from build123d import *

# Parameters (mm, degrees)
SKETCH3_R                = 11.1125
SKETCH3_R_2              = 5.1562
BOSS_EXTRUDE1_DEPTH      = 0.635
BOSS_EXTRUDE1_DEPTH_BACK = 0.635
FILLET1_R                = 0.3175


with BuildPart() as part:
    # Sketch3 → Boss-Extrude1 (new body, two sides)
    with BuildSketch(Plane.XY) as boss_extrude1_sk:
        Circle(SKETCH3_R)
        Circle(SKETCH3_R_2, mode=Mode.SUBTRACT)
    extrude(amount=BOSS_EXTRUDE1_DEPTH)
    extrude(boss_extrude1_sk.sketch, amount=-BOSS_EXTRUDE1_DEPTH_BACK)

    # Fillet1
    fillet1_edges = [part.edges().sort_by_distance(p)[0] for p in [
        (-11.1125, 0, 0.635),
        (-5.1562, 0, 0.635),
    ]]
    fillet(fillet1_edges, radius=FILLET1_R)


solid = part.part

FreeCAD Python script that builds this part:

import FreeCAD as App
import Part
import Sketcher

V = App.Vector
Q = App.Units.Quantity


def edges_at(feature, points):
    """Names of the edges that pass closest to the given points."""
    edges = feature.Shape.Edges
    near = lambda p: min(range(len(edges)), key=lambda i: edges[i].distToShape(Part.Vertex(*p))[0])
    return sorted({f"Edge{near(p) + 1}" for p in points})

doc = App.newDocument("Part")
body = doc.addObject("PartDesign::Body", "Body")

# Sketch on XY plane
sketch1 = body.newObject("Sketcher::SketchObject", "Sketch")
sketch1.AttachmentSupport = (doc.getObject("XY_Plane"), [""])
sketch1.MapMode = "FlatFace"
sketch1.addGeometry(Part.Circle(V(0, 0, 0), V(0, 0, 1), 11.1125), False)
sketch1.addGeometry(Part.Circle(V(0, 0, 0), V(0, 0, 1), 5.1562), False)
sketch1.addConstraint(Sketcher.Constraint("Coincident", 0, 3, -1, 1))
sketch1.addConstraint(Sketcher.Constraint("Coincident", 1, 3, -1, 1))
sketch1.addConstraint(Sketcher.Constraint("Diameter", 0, Q("0.875 in")))
sketch1.addConstraint(Sketcher.Constraint("Diameter", 1, Q("0.406 in")))
pad1 = body.newObject("PartDesign::Pad", "Pad")
pad1.Profile = sketch1
pad1.Type = "TwoLengths"
pad1.Length = Q("0.025 in")
pad1.Length2 = Q("0.025 in")
doc.recompute()

fillet = body.newObject("PartDesign::Fillet", "Fillet")
fillet.Base = (pad1, edges_at(pad1, [(-11.113, 0, 0.635), (-5.156, 0, 0.635)]))
fillet.Radius = Q("0.0125 in")

doc.recompute()
